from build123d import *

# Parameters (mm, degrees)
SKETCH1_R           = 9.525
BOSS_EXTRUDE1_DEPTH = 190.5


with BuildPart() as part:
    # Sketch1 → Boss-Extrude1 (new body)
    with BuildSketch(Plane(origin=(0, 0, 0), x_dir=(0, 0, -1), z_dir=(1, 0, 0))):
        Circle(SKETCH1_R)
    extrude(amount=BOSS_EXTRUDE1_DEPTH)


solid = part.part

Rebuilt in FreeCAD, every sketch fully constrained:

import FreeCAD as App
import Part
import Sketcher
from FreeCAD import Vector
Q = App.Units.Quantity

doc = App.newDocument("Part")
body = doc.addObject("PartDesign::Body", "Body")

sketch1 = body.newObject("Sketcher::SketchObject", "Sketch")
sketch1.AttachmentSupport = (doc.getObject("YZ_Plane"), [""])
sketch1.MapMode = "FlatFace"
sketch1.addGeometry(Part.Circle(Vector(0, 0, 0), Vector(0, 0, 1), 9.525), False)
sketch1.addConstraint([
    Sketcher.Constraint("Coincident", 0, 3, -1, 1),
    Sketcher.Constraint("Diameter", 0, Q("0.75 in")),
])
pad1 = body.newObject("PartDesign::Pad", "Pad")
pad1.Profile = sketch1
pad1.Length = Q("7.5 in")

doc.recompute()
